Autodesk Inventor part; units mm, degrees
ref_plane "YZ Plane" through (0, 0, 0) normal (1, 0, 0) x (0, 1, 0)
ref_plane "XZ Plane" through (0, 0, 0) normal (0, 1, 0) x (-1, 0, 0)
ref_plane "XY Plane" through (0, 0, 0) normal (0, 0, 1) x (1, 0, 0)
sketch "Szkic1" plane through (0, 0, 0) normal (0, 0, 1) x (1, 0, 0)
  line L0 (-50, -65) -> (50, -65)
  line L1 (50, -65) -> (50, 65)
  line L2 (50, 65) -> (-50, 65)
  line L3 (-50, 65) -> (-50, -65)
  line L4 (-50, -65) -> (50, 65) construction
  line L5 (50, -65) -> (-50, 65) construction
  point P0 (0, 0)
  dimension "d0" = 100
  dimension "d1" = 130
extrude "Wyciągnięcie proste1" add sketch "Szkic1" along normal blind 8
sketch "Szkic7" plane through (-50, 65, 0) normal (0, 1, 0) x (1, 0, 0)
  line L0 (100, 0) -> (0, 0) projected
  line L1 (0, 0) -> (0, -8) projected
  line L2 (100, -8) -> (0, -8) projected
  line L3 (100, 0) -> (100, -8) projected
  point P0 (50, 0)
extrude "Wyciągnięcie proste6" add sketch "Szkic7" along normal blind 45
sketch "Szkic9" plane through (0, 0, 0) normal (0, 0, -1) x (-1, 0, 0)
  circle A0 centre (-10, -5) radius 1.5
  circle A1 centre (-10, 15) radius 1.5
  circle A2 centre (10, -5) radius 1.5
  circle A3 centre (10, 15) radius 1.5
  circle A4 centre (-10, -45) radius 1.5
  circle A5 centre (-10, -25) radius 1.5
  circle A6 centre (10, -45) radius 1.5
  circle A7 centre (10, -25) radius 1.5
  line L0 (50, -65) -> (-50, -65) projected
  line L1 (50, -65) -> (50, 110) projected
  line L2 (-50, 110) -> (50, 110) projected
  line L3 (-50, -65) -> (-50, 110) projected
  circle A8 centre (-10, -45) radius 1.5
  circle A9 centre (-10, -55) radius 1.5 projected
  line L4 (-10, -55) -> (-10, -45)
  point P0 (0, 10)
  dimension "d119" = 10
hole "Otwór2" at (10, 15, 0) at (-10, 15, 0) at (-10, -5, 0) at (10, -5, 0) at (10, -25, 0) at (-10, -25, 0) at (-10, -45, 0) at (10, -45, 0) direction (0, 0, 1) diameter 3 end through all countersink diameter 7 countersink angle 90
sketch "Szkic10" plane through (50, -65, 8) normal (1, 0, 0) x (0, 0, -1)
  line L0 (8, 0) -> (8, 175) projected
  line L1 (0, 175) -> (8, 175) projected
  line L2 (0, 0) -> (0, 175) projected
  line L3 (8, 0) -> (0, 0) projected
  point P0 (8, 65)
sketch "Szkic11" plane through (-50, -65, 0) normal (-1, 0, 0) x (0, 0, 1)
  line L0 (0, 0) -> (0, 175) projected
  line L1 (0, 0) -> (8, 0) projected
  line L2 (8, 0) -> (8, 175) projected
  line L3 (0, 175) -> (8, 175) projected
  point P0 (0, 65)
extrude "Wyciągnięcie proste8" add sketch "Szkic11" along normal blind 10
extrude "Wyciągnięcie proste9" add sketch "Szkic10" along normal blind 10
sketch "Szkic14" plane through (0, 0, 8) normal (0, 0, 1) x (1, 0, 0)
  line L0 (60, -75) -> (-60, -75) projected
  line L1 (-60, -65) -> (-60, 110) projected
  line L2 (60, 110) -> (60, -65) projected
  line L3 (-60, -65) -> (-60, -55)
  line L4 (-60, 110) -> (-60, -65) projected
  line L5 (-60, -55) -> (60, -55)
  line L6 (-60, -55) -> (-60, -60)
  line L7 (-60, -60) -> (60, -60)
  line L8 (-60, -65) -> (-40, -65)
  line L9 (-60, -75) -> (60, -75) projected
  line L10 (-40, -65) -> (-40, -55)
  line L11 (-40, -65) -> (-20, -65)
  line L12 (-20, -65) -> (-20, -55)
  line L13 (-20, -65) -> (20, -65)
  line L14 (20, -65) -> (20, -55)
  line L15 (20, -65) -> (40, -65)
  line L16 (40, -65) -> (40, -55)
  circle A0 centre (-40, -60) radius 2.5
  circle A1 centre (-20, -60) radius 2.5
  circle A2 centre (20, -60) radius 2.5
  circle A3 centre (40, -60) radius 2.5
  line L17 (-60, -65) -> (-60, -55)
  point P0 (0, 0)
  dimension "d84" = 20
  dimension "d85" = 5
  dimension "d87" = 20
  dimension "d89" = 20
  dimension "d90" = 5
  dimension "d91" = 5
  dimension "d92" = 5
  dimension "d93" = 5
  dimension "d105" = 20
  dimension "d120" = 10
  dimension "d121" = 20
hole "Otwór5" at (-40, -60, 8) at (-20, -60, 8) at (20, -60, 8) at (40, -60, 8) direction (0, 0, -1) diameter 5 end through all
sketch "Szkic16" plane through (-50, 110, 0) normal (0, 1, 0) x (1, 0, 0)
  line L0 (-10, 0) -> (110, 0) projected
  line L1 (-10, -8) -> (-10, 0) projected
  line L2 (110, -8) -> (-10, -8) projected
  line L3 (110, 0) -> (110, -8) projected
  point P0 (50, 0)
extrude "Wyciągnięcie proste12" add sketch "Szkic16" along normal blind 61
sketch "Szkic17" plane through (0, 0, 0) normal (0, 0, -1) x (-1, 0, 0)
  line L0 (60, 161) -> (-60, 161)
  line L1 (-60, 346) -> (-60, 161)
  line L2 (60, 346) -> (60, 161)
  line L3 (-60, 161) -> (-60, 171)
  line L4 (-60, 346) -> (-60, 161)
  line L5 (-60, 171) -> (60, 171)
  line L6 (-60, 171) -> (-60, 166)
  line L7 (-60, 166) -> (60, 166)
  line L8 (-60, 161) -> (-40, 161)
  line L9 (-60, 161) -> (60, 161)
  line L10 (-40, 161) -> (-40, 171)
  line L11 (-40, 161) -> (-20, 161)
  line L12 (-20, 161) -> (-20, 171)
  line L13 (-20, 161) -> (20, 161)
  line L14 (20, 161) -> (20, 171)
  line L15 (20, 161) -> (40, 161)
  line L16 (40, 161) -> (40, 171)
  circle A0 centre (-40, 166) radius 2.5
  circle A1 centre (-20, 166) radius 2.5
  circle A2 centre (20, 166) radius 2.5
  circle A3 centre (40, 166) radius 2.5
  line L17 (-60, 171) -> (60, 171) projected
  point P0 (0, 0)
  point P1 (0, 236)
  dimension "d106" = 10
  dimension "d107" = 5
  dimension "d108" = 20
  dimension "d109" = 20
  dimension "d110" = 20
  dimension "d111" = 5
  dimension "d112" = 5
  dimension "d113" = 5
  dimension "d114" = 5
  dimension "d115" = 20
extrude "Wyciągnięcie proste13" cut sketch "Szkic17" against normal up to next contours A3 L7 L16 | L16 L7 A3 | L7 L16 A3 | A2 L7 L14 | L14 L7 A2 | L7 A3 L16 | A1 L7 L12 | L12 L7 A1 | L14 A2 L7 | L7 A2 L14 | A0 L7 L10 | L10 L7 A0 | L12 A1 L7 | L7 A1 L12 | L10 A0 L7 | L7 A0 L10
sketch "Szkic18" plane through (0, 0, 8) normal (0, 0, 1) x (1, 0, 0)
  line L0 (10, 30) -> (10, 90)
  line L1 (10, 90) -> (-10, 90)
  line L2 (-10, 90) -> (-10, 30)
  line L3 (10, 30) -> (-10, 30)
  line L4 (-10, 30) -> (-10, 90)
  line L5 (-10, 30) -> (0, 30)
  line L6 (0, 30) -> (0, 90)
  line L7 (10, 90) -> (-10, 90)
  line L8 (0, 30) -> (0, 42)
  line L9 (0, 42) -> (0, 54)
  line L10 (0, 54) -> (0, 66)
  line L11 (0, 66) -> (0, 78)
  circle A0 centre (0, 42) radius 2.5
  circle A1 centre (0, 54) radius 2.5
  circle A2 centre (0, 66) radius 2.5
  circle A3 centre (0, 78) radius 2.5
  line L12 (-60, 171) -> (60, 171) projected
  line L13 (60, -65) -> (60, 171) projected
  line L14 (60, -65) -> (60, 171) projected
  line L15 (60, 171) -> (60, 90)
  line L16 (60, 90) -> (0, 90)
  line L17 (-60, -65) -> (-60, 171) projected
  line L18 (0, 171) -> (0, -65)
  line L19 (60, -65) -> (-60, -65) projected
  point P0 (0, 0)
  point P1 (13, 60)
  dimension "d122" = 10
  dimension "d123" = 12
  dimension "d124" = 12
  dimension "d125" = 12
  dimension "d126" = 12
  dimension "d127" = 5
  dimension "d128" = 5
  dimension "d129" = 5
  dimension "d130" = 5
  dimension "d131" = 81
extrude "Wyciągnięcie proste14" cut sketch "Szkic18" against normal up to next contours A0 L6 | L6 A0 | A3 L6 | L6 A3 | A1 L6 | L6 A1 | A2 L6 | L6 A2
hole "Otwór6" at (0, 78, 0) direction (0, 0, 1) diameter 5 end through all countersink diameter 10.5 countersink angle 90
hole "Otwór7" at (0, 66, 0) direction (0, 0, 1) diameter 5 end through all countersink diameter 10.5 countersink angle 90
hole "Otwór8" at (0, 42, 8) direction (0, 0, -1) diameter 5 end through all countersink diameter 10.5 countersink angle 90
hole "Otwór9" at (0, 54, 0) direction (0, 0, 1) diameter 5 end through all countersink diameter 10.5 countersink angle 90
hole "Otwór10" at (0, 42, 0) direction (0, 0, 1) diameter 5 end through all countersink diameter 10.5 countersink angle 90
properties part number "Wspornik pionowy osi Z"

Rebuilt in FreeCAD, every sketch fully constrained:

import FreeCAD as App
import Part
import Sketcher

doc = App.newDocument("Part")
body = doc.addObject("PartDesign::Body", "Body")

# Sketch on XY plane
sketch1 = body.newObject("Sketcher::SketchObject", "Sketch")
sketch1.AttachmentSupport = (doc.getObject("XY_Plane"), [""])
sketch1.MapMode = "FlatFace"
sketch1.addGeometry(Part.LineSegment(App.Vector(-50, 65, 0), App.Vector(-50, -65, 0)), False)
sketch1.addGeometry(Part.LineSegment(App.Vector(-50, -65, 0), App.Vector(50, -65, 0)), False)
sketch1.addGeometry(Part.LineSegment(App.Vector(50, -65, 0), App.Vector(50, 65, 0)), False)
sketch1.addGeometry(Part.LineSegment(App.Vector(50, 65, 0), App.Vector(-50, 65, 0)), False)
sketch1.addConstraint(Sketcher.Constraint("Coincident", 0, 2, 1, 1))
sketch1.addConstraint(Sketcher.Constraint("Coincident", 1, 2, 2, 1))
sketch1.addConstraint(Sketcher.Constraint("Coincident", 2, 2, 3, 1))
sketch1.addConstraint(Sketcher.Constraint("Coincident", 3, 2, 0, 1))
sketch1.addConstraint(Sketcher.Constraint("Vertical", 0))
sketch1.addConstraint(Sketcher.Constraint("Horizontal", 1))
sketch1.addConstraint(Sketcher.Constraint("Vertical", 2))
sketch1.addConstraint(Sketcher.Constraint("Horizontal", 3))
sketch1.addConstraint(Sketcher.Constraint("Symmetric", 0, 2, 2, 2, -1, 1))
sketch1.addConstraint(Sketcher.Constraint("DistanceX", 1, 1, 1, 2, 100.0))
sketch1.addConstraint(Sketcher.Constraint("DistanceY", 0, 2, 0, 1, 130.0))
pad1 = body.newObject("PartDesign::Pad", "Pad")
pad1.Profile = sketch1
pad1.Length = 8

# Sketch on XZ plane
sketch2 = body.newObject("Sketcher::SketchObject", "Sketch001")
sketch2.AttachmentSupport = (doc.getObject("XZ_Plane"), [""])
sketch2.MapMode = "FlatFace"
sketch2.AttachmentOffset = App.Placement(App.Vector(0, 0, -65), App.Rotation())
sketch2.addGeometry(Part.LineSegment(App.Vector(50, 8, 0), App.Vector(50, 0, 0)), False)
sketch2.addGeometry(Part.LineSegment(App.Vector(50, 0, 0), App.Vector(-50, 0, 0)), False)
sketch2.addGeometry(Part.LineSegment(App.Vector(-50, 0, 0), App.Vector(-50, 8, 0)), False)
sketch2.addGeometry(Part.LineSegment(App.Vector(-50, 8, 0), App.Vector(50, 8, 0)), False)
sketch2.addConstraint(Sketcher.Constraint("Coincident", 0, 2, 1, 1))
sketch2.addConstraint(Sketcher.Constraint("Coincident", 1, 2, 2, 1))
sketch2.addConstraint(Sketcher.Constraint("Coincident", 2, 2, 3, 1))
sketch2.addConstraint(Sketcher.Constraint("Coincident", 3, 2, 0, 1))
sketch2.addConstraint(Sketcher.Constraint("Vertical", 0))
sketch2.addConstraint(Sketcher.Constraint("Horizontal", 1))
sketch2.addConstraint(Sketcher.Constraint("Vertical", 2))
sketch2.addConstraint(Sketcher.Constraint("Horizontal", 3))
sketch2.addConstraint(Sketcher.Constraint("Symmetric", 0, 2, 1, 2, -1, 1))
sketch2.addConstraint(Sketcher.Constraint("DistanceX", 1, 2, 1, 1, 100.0))
sketch2.addConstraint(Sketcher.Constraint("DistanceY", 0, 2, 0, 1, 8.0))
pad2 = body.newObject("PartDesign::Pad", "Pad001")
pad2.Profile = sketch2
pad2.Length = 45
pad2.Reversed = True

# Sketch on XY plane
sketch3 = body.newObject("Sketcher::SketchObject", "Sketch002")
sketch3.AttachmentSupport = (doc.getObject("XY_Plane"), [""])
sketch3.MapMode = "FlatFace"
sketch3.addGeometry(Part.Circle(App.Vector(10, 15, 0), App.Vector(0, 0, 1), 1.5), False)
sketch3.addGeometry(Part.Circle(App.Vector(-10, 15, 0), App.Vector(0, 0, 1), 1.5), False)
sketch3.addGeometry(Part.Circle(App.Vector(-10, -5, 0), App.Vector(0, 0, 1), 1.5), False)
sketch3.addGeometry(Part.Circle(App.Vector(10, -5, 0), App.Vector(0, 0, 1), 1.5), False)
sketch3.addGeometry(Part.Circle(App.Vector(10, -25, 0), App.Vector(0, 0, 1), 1.5), False)
sketch3.addGeometry(Part.Circle(App.Vector(-10, -25, 0), App.Vector(0, 0, 1), 1.5), False)
sketch3.addGeometry(Part.Circle(App.Vector(-10, -45, 0), App.Vector(0, 0, 1), 1.5), False)
sketch3.addGeometry(Part.Circle(App.Vector(10, -45, 0), App.Vector(0, 0, 1), 1.5), False)
sketch3.addConstraint(Sketcher.Constraint("Equal", 0, 1))
sketch3.addConstraint(Sketcher.Constraint("Equal", 1, 2))
sketch3.addConstraint(Sketcher.Constraint("Equal", 2, 3))
sketch3.addConstraint(Sketcher.Constraint("Equal", 3, 4))
sketch3.addConstraint(Sketcher.Constraint("Equal", 4, 5))
sketch3.addConstraint(Sketcher.Constraint("Equal", 5, 6))
sketch3.addConstraint(Sketcher.Constraint("Equal", 6, 7))
sketch3.addConstraint(Sketcher.Constraint("Symmetric", 0, 3, 1, 3, -2))
sketch3.addConstraint(Sketcher.Constraint("Symmetric", 2, 3, 3, 3, -2))
sketch3.addConstraint(Sketcher.Constraint("Symmetric", 4, 3, 5, 3, -2))
sketch3.addConstraint(Sketcher.Constraint("Symmetric", 6, 3, 7, 3, -2))
sketch3.addConstraint(Sketcher.Constraint("Vertical", 1, 3, 2, 3))
sketch3.addConstraint(Sketcher.Constraint("Vertical", 3, 3, 4, 3))
sketch3.addConstraint(Sketcher.Constraint("Vertical", 5, 3, 6, 3))
sketch3.addConstraint(Sketcher.Constraint("Diameter", 0, 3.0))
sketch3.addConstraint(Sketcher.Constraint("DistanceX", -1, 1, 0, 3, 10.0))
sketch3.addConstraint(Sketcher.Constraint("DistanceY", -1, 1, 0, 3, 15.0))
sketch3.addConstraint(Sketcher.Constraint("DistanceY", 2, 3, -1, 1, 5.0))
sketch3.addConstraint(Sketcher.Constraint("DistanceY", 4, 3, -1, 1, 25.0))
sketch3.addConstraint(Sketcher.Constraint("DistanceY", 6, 3, -1, 1, 45.0))
doc.recompute()
hole = body.newObject("PartDesign::Hole", "Hole")
hole.Profile = sketch3
hole.ThreadType = "None"
hole.Diameter = 3
hole.DepthType = "ThroughAll"
hole.HoleCutType = "Countersink"
hole.HoleCutDiameter = 7
hole.HoleCutCountersinkAngle = 90
hole.Reversed = True

# Sketch on YZ plane
sketch4 = body.newObject("Sketcher::SketchObject", "Sketch003")
sketch4.AttachmentSupport = (doc.getObject("YZ_Plane"), [""])
sketch4.MapMode = "FlatFace"
sketch4.AttachmentOffset = App.Placement(App.Vector(0, 0, -50), App.Rotation())
sketch4.addGeometry(Part.LineSegment(App.Vector(110, 0, 0), App.Vector(-65, 0, 0)), False)
sketch4.addGeometry(Part.LineSegment(App.Vector(-65, 0, 0), App.Vector(-65, 8, 0)), False)
sketch4.addGeometry(Part.LineSegment(App.Vector(-65, 8, 0), App.Vector(110, 8, 0)), False)
sketch4.addGeometry(Part.LineSegment(App.Vector(110, 8, 0), App.Vector(110, 0, 0)), False)
sketch4.addConstraint(Sketcher.Constraint("Coincident", 0, 2, 1, 1))
sketch4.addConstraint(Sketcher.Constraint("Coincident", 1, 2, 2, 1))
sketch4.addConstraint(Sketcher.Constraint("Coincident", 2, 2, 3, 1))
sketch4.addConstraint(Sketcher.Constraint("Coincident", 3, 2, 0, 1))
sketch4.addConstraint(Sketcher.Constraint("Horizontal", 0))
sketch4.addConstraint(Sketcher.Constraint("Vertical", 1))
sketch4.addConstraint(Sketcher.Constraint("Horizontal", 2))
sketch4.addConstraint(Sketcher.Constraint("Vertical", 3))
sketch4.addConstraint(Sketcher.Constraint("PointOnObject", 0, 2, -1))
sketch4.addConstraint(Sketcher.Constraint("DistanceX", 0, 2, 0, 1, 175.0))
sketch4.addConstraint(Sketcher.Constraint("DistanceY", 1, 1, 1, 2, 8.0))
sketch4.addConstraint(Sketcher.Constraint("DistanceX", 0, 2, -1, 1, 65.0))
pad3 = body.newObject("PartDesign::Pad", "Pad002")
pad3.Profile = sketch4
pad3.Length = 10
pad3.Reversed = True

# Sketch on YZ plane
sketch5 = body.newObject("Sketcher::SketchObject", "Sketch004")
sketch5.AttachmentSupport = (doc.getObject("YZ_Plane"), [""])
sketch5.MapMode = "FlatFace"
sketch5.AttachmentOffset = App.Placement(App.Vector(0, 0, 50), App.Rotation())
sketch5.addGeometry(Part.LineSegment(App.Vector(-65, 8, 0), App.Vector(-65, 0, 0)), False)
sketch5.addGeometry(Part.LineSegment(App.Vector(-65, 0, 0), App.Vector(110, 0, 0)), False)
sketch5.addGeometry(Part.LineSegment(App.Vector(110, 0, 0), App.Vector(110, 8, 0)), False)
sketch5.addGeometry(Part.LineSegment(App.Vector(110, 8, 0), App.Vector(-65, 8, 0)), False)
sketch5.addConstraint(Sketcher.Constraint("Coincident", 0, 2, 1, 1))
sketch5.addConstraint(Sketcher.Constraint("Coincident", 1, 2, 2, 1))
sketch5.addConstraint(Sketcher.Constraint("Coincident", 2, 2, 3, 1))
sketch5.addConstraint(Sketcher.Constraint("Coincident", 3, 2, 0, 1))
sketch5.addConstraint(Sketcher.Constraint("Vertical", 0))
sketch5.addConstraint(Sketcher.Constraint("Horizontal", 1))
sketch5.addConstraint(Sketcher.Constraint("Vertical", 2))
sketch5.addConstraint(Sketcher.Constraint("Horizontal", 3))
sketch5.addConstraint(Sketcher.Constraint("PointOnObject", 0, 2, -1))
sketch5.addConstraint(Sketcher.Constraint("DistanceX", 1, 1, 1, 2, 175.0))
sketch5.addConstraint(Sketcher.Constraint("DistanceY", 0, 2, 0, 1, 8.0))
sketch5.addConstraint(Sketcher.Constraint("DistanceX", 0, 2, -1, 1, 65.0))
pad4 = body.newObject("PartDesign::Pad", "Pad003")
pad4.Profile = sketch5
pad4.Length = 10

# Sketch on XY plane
sketch6 = body.newObject("Sketcher::SketchObject", "Sketch005")
sketch6.AttachmentSupport = (doc.getObject("XY_Plane"), [""])
sketch6.MapMode = "FlatFace"
sketch6.AttachmentOffset = App.Placement(App.Vector(0, 0, 8), App.Rotation())
sketch6.addGeometry(Part.Circle(App.Vector(-40, -60, 0), App.Vector(0, 0, 1), 2.5), False)
sketch6.addGeometry(Part.Circle(App.Vector(-20, -60, 0), App.Vector(0, 0, 1), 2.5), False)
sketch6.addGeometry(Part.Circle(App.Vector(20, -60, 0), App.Vector(0, 0, 1), 2.5), False)
sketch6.addGeometry(Part.Circle(App.Vector(40, -60, 0), App.Vector(0, 0, 1), 2.5), False)
sketch6.addConstraint(Sketcher.Constraint("Equal", 0, 1))
sketch6.addConstraint(Sketcher.Constraint("Equal", 1, 2))
sketch6.addConstraint(Sketcher.Constraint("Equal", 2, 3))
sketch6.addConstraint(Sketcher.Constraint("Symmetric", 1, 3, 2, 3, -2))
sketch6.addConstraint(Sketcher.Constraint("Symmetric", 0, 3, 3, 3, -2))
sketch6.addConstraint(Sketcher.Constraint("Horizontal", 0, 3, 1, 3))
sketch6.addConstraint(Sketcher.Constraint("Diameter", 0, 5.0))
sketch6.addConstraint(Sketcher.Constraint("DistanceX", 0, 3, -1, 1, 40.0))
sketch6.addConstraint(Sketcher.Constraint("DistanceY", 0, 3, -1, 1, 60.0))
sketch6.addConstraint(Sketcher.Constraint("DistanceX", 1, 3, -1, 1, 20.0))
doc.recompute()
hole2 = body.newObject("PartDesign::Hole", "Hole001")
hole2.Profile = sketch6
hole2.ThreadType = "None"
hole2.Diameter = 5
hole2.DepthType = "ThroughAll"

# Sketch on XZ plane
sketch7 = body.newObject("Sketcher::SketchObject", "Sketch006")
sketch7.AttachmentSupport = (doc.getObject("XZ_Plane"), [""])
sketch7.MapMode = "FlatFace"
sketch7.AttachmentOffset = App.Placement(App.Vector(0, 0, -110), App.Rotation())
sketch7.addGeometry(Part.LineSegment(App.Vector(60, 0, 0), App.Vector(-60, 0, 0)), False)
sketch7.addGeometry(Part.LineSegment(App.Vector(-60, 0, 0), App.Vector(-60, 8, 0)), False)
sketch7.addGeometry(Part.LineSegment(App.Vector(-60, 8, 0), App.Vector(60, 8, 0)), False)
sketch7.addGeometry(Part.LineSegment(App.Vector(60, 8, 0), App.Vector(60, 0, 0)), False)
sketch7.addConstraint(Sketcher.Constraint("Coincident", 0, 2, 1, 1))
sketch7.addConstraint(Sketcher.Constraint("Coincident", 1, 2, 2, 1))
sketch7.addConstraint(Sketcher.Constraint("Coincident", 2, 2, 3, 1))
sketch7.addConstraint(Sketcher.Constraint("Coincident", 3, 2, 0, 1))
sketch7.addConstraint(Sketcher.Constraint("Horizontal", 0))
sketch7.addConstraint(Sketcher.Constraint("Vertical", 1))
sketch7.addConstraint(Sketcher.Constraint("Horizontal", 2))
sketch7.addConstraint(Sketcher.Constraint("Vertical", 3))
sketch7.addConstraint(Sketcher.Constraint("Symmetric", 0, 2, 3, 2, -1, 1))
sketch7.addConstraint(Sketcher.Constraint("DistanceX", 0, 2, 0, 1, 120.0))
sketch7.addConstraint(Sketcher.Constraint("DistanceY", 1, 1, 1, 2, 8.0))
pad5 = body.newObject("PartDesign::Pad", "Pad004")
pad5.Profile = sketch7
pad5.Length = 61
pad5.Reversed = True

# Sketch on XY plane
sketch8 = body.newObject("Sketcher::SketchObject", "Sketch007")
sketch8.AttachmentSupport = (doc.getObject("XY_Plane"), [""])
sketch8.MapMode = "FlatFace"
sketch8.addGeometry(Part.Circle(App.Vector(-40, 166, 0), App.Vector(0, 0, 1), 2.5), False)
sketch8.addGeometry(Part.Circle(App.Vector(-20, 166, 0), App.Vector(0, 0, 1), 2.5), False)
sketch8.addGeometry(Part.Circle(App.Vector(20, 166, 0), App.Vector(0, 0, 1), 2.5), False)
sketch8.addGeometry(Part.Circle(App.Vector(40, 166, 0), App.Vector(0, 0, 1), 2.5), False)
sketch8.addConstraint(Sketcher.Constraint("Equal", 0, 1))
sketch8.addConstraint(Sketcher.Constraint("Equal", 1, 2))
sketch8.addConstraint(Sketcher.Constraint("Equal", 2, 3))
sketch8.addConstraint(Sketcher.Constraint("Symmetric", 1, 3, 2, 3, -2))
sketch8.addConstraint(Sketcher.Constraint("Symmetric", 0, 3, 3, 3, -2))
sketch8.addConstraint(Sketcher.Constraint("Horizontal", 0, 3, 1, 3))
sketch8.addConstraint(Sketcher.Constraint("Diameter", 0, 5.0))
sketch8.addConstraint(Sketcher.Constraint("DistanceX", 1, 3, -1, 1, 20.0))
sketch8.addConstraint(Sketcher.Constraint("DistanceX", 0, 3, 1, 3, 20.0))
sketch8.addConstraint(Sketcher.Constraint("DistanceY", -1, 1, 0, 3, 166.0))
pocket1 = body.newObject("PartDesign::Pocket", "Pocket")
pocket1.Profile = sketch8
pocket1.Type = "UpToFirst"
pocket1.Reversed = True

# Sketch on XY plane
sketch9 = body.newObject("Sketcher::SketchObject", "Sketch008")
sketch9.AttachmentSupport = (doc.getObject("XY_Plane"), [""])
sketch9.MapMode = "FlatFace"
sketch9.AttachmentOffset = App.Placement(App.Vector(0, 0, 8), App.Rotation())
sketch9.addGeometry(Part.Circle(App.Vector(0, 42, 0), App.Vector(0, 0, 1), 2.5), False)
sketch9.addGeometry(Part.Circle(App.Vector(0, 78, 0), App.Vector(0, 0, 1), 2.5), False)
sketch9.addGeometry(Part.Circle(App.Vector(0, 54, 0), App.Vector(0, 0, 1), 2.5), False)
sketch9.addGeometry(Part.Circle(App.Vector(0, 66, 0), App.Vector(0, 0, 1), 2.5), False)
sketch9.addConstraint(Sketcher.Constraint("Equal", 0, 1))
sketch9.addConstraint(Sketcher.Constraint("Equal", 1, 2))
sketch9.addConstraint(Sketcher.Constraint("Equal", 2, 3))
sketch9.addConstraint(Sketcher.Constraint("PointOnObject", 0, 3, -2))
sketch9.addConstraint(Sketcher.Constraint("PointOnObject", 1, 3, -2))
sketch9.addConstraint(Sketcher.Constraint("PointOnObject", 2, 3, -2))
sketch9.addConstraint(Sketcher.Constraint("PointOnObject", 3, 3, -2))
sketch9.addConstraint(Sketcher.Constraint("Diameter", 0, 5.0))
sketch9.addConstraint(Sketcher.Constraint("DistanceY", 0, 3, 2, 3, 12.0))
sketch9.addConstraint(Sketcher.Constraint("DistanceY", 3, 3, 1, 3, 12.0))
sketch9.addConstraint(Sketcher.Constraint("DistanceY", 2, 3, 3, 3, 12.0))
sketch9.addConstraint(Sketcher.Constraint("DistanceY", -1, 1, 0, 3, 42.0))
pocket2 = body.newObject("PartDesign::Pocket", "Pocket001")
pocket2.Profile = sketch9
pocket2.Type = "UpToFirst"

# Sketch on XY plane
sketch10 = body.newObject("Sketcher::SketchObject", "Sketch009")
sketch10.AttachmentSupport = (doc.getObject("XY_Plane"), [""])
sketch10.MapMode = "FlatFace"
sketch10.addGeometry(Part.Circle(App.Vector(0, 78, 0), App.Vector(0, 0, 1), 2.5), False)
sketch10.addConstraint(Sketcher.Constraint("PointOnObject", 0, 3, -2))
sketch10.addConstraint(Sketcher.Constraint("Diameter", 0, 5.0))
sketch10.addConstraint(Sketcher.Constraint("DistanceY", -1, 1, 0, 3, 78.0))
doc.recompute()
hole3 = body.newObject("PartDesign::Hole", "Hole002")
hole3.Profile = sketch10
hole3.ThreadType = "None"
hole3.Diameter = 5
hole3.DepthType = "ThroughAll"
hole3.HoleCutType = "Countersink"
hole3.HoleCutDiameter = 10.5
hole3.HoleCutCountersinkAngle = 90
hole3.Reversed = True

# Sketch on XY plane
sketch11 = body.newObject("Sketcher::SketchObject", "Sketch010")
sketch11.AttachmentSupport = (doc.getObject("XY_Plane"), [""])
sketch11.MapMode = "FlatFace"
sketch11.addGeometry(Part.Circle(App.Vector(0, 66, 0), App.Vector(0, 0, 1), 2.5), False)
sketch11.addConstraint(Sketcher.Constraint("PointOnObject", 0, 3, -2))
sketch11.addConstraint(Sketcher.Constraint("Diameter", 0, 5.0))
sketch11.addConstraint(Sketcher.Constraint("DistanceY", -1, 1, 0, 3, 66.0))
doc.recompute()
hole4 = body.newObject("PartDesign::Hole", "Hole003")
hole4.Profile = sketch11
hole4.ThreadType = "None"
hole4.Diameter = 5
hole4.DepthType = "ThroughAll"
hole4.HoleCutType = "Countersink"
hole4.HoleCutDiameter = 10.5
hole4.HoleCutCountersinkAngle = 90
hole4.Reversed = True

# Sketch on XY plane
sketch12 = body.newObject("Sketcher::SketchObject", "Sketch011")
sketch12.AttachmentSupport = (doc.getObject("XY_Plane"), [""])
sketch12.MapMode = "FlatFace"
sketch12.AttachmentOffset = App.Placement(App.Vector(0, 0, 8), App.Rotation())
sketch12.addGeometry(Part.Circle(App.Vector(0, 42, 0), App.Vector(0, 0, 1), 2.5), False)
sketch12.addConstraint(Sketcher.Constraint("PointOnObject", 0, 3, -2))
sketch12.addConstraint(Sketcher.Constraint("Diameter", 0, 5.0))
sketch12.addConstraint(Sketcher.Constraint("DistanceY", -1, 1, 0, 3, 42.0))
doc.recompute()
hole5 = body.newObject("PartDesign::Hole", "Hole004")
hole5.Profile = sketch12
hole5.ThreadType = "None"
hole5.Diameter = 5
hole5.DepthType = "ThroughAll"
hole5.HoleCutType = "Countersink"
hole5.HoleCutDiameter = 10.5
hole5.HoleCutCountersinkAngle = 90

# Sketch on XY plane
sketch13 = body.newObject("Sketcher::SketchObject", "Sketch012")
sketch13.AttachmentSupport = (doc.getObject("XY_Plane"), [""])
sketch13.MapMode = "FlatFace"
sketch13.addGeometry(Part.Circle(App.Vector(0, 54, 0), App.Vector(0, 0, 1), 2.5), False)
sketch13.addConstraint(Sketcher.Constraint("PointOnObject", 0, 3, -2))
sketch13.addConstraint(Sketcher.Constraint("Diameter", 0, 5.0))
sketch13.addConstraint(Sketcher.Constraint("DistanceY", -1, 1, 0, 3, 54.0))
doc.recompute()
hole6 = body.newObject("PartDesign::Hole", "Hole005")
hole6.Profile = sketch13
hole6.ThreadType = "None"
hole6.Diameter = 5
hole6.DepthType = "ThroughAll"
hole6.HoleCutType = "Countersink"
hole6.HoleCutDiameter = 10.5
hole6.HoleCutCountersinkAngle = 90
hole6.Reversed = True

# Sketch on XY plane
sketch14 = body.newObject("Sketcher::SketchObject", "Sketch013")
sketch14.AttachmentSupport = (doc.getObject("XY_Plane"), [""])
sketch14.MapMode = "FlatFace"
sketch14.addGeometry(Part.Circle(App.Vector(0, 42, 0), App.Vector(0, 0, 1), 2.5), False)
sketch14.addConstraint(Sketcher.Constraint("PointOnObject", 0, 3, -2))
sketch14.addConstraint(Sketcher.Constraint("Diameter", 0, 5.0))
sketch14.addConstraint(Sketcher.Constraint("DistanceY", -1, 1, 0, 3, 42.0))
doc.recompute()
hole7 = body.newObject("PartDesign::Hole", "Hole006")
hole7.Profile = sketch14
hole7.ThreadType = "None"
hole7.Diameter = 5
hole7.DepthType = "ThroughAll"
hole7.HoleCutType = "Countersink"
hole7.HoleCutDiameter = 10.5
hole7.HoleCutCountersinkAngle = 90
hole7.Reversed = True

doc.recompute()
